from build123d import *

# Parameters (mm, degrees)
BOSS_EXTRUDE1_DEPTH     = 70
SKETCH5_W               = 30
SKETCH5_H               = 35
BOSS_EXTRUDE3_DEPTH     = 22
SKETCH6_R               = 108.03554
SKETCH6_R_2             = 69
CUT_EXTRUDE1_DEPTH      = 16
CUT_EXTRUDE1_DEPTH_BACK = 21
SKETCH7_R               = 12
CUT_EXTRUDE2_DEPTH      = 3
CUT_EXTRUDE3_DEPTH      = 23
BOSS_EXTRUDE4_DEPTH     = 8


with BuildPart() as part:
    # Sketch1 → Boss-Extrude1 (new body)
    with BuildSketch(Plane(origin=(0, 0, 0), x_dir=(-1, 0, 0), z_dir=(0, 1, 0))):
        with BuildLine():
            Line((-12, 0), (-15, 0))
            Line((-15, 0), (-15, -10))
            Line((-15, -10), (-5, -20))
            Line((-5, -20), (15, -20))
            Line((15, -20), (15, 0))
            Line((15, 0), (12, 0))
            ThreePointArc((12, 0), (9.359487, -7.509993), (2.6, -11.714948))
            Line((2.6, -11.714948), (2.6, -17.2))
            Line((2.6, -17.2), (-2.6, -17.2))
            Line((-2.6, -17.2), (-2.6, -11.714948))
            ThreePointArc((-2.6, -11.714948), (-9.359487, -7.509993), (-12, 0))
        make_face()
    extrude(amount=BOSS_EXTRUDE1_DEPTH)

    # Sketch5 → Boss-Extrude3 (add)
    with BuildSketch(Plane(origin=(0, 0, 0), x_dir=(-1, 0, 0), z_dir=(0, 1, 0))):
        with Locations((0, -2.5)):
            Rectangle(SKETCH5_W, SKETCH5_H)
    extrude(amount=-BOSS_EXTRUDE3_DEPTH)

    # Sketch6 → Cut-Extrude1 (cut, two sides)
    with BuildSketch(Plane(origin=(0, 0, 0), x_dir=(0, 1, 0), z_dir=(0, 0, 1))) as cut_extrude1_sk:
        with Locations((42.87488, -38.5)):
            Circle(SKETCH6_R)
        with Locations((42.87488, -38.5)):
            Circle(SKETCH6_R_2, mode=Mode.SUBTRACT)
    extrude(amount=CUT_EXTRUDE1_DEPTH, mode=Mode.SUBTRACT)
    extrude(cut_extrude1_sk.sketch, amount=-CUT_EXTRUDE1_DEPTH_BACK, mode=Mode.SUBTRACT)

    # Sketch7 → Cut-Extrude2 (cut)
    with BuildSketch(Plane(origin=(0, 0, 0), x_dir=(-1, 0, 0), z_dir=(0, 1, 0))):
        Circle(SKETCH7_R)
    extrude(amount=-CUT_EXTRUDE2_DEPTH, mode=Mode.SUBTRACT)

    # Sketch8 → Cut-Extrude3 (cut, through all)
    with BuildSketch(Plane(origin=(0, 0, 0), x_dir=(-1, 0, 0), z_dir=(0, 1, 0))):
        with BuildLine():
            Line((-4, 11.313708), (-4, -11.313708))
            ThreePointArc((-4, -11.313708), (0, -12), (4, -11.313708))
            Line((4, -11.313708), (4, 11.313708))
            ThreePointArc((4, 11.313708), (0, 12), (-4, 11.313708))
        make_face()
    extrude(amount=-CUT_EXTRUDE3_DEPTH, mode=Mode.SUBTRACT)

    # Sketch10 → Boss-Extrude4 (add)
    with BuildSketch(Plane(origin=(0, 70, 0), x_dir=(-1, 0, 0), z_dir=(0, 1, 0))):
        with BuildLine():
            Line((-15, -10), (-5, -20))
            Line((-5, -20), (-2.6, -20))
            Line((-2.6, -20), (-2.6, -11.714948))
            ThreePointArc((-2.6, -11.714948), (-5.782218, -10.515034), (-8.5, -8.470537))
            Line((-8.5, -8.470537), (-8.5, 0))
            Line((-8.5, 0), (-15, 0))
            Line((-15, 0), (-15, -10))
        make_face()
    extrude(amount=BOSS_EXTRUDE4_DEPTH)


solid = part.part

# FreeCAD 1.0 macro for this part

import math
import FreeCAD as App
import Part
import Sketcher
Q = App.Units.Quantity


def add_polygon(sketch, points):
    """Adds a closed chain of lines whose ends are joined by coincident constraints."""
    first, n = sketch.GeometryCount, len(points)
    for a, b in zip(points, points[1:] + points[:1]):
        sketch.addGeometry(Part.LineSegment(App.Vector(*a, 0), App.Vector(*b, 0)), False)
    for i in range(n):
        sketch.addConstraint(Sketcher.Constraint("Coincident", first + i, 2, first + (i + 1) % n, 1))

doc = App.newDocument("Part")
body = doc.addObject("PartDesign::Body", "Body")

# Sketch on XZ plane
sketch1 = body.newObject("Sketcher::SketchObject", "Sketch")
sketch1.AttachmentSupport = (doc.getObject("XZ_Plane"), [""])
sketch1.MapMode = "FlatFace"
sketch1.addGeometry(Part.LineSegment(App.Vector(12, 0, 0), App.Vector(15, 0, 0)), False)
sketch1.addGeometry(Part.LineSegment(App.Vector(15, 0, 0), App.Vector(15, -10, 0)), False)
sketch1.addGeometry(Part.LineSegment(App.Vector(15, -10, 0), App.Vector(5, -20, 0)), False)
sketch1.addGeometry(Part.LineSegment(App.Vector(5, -20, 0), App.Vector(-15, -20, 0)), False)
sketch1.addGeometry(Part.LineSegment(App.Vector(-15, -20, 0), App.Vector(-15, 0, 0)), False)
sketch1.addGeometry(Part.LineSegment(App.Vector(-15, 0, 0), App.Vector(-12, 0, 0)), False)
sketch1.addGeometry(Part.ArcOfCircle(Part.Circle(App.Vector(0, 0, 0), App.Vector(0, 0, 1), 12), math.radians(-180), math.radians(-103)), False)
sketch1.addGeometry(Part.LineSegment(App.Vector(-2.6, -11.7, 0), App.Vector(-2.6, -17.2, 0)), False)
sketch1.addGeometry(Part.LineSegment(App.Vector(-2.6, -17.2, 0), App.Vector(2.6, -17.2, 0)), False)
sketch1.addGeometry(Part.LineSegment(App.Vector(2.6, -17.2, 0), App.Vector(2.6, -11.7, 0)), False)
sketch1.addGeometry(Part.ArcOfCircle(Part.Circle(App.Vector(0, 0, 0), App.Vector(0, 0, 1), 12), math.radians(-77), math.radians(0)), False)
sketch1.addConstraint(Sketcher.Constraint("Coincident", 0, 2, 1, 1))
sketch1.addConstraint(Sketcher.Constraint("Coincident", 1, 2, 2, 1))
sketch1.addConstraint(Sketcher.Constraint("Coincident", 2, 2, 3, 1))
sketch1.addConstraint(Sketcher.Constraint("Coincident", 3, 2, 4, 1))
sketch1.addConstraint(Sketcher.Constraint("Coincident", 4, 2, 5, 1))
sketch1.addConstraint(Sketcher.Constraint("Coincident", 5, 2, 6, 1))
sketch1.addConstraint(Sketcher.Constraint("Coincident", 6, 2, 7, 1))
sketch1.addConstraint(Sketcher.Constraint("Coincident", 7, 2, 8, 1))
sketch1.addConstraint(Sketcher.Constraint("Coincident", 8, 2, 9, 1))
sketch1.addConstraint(Sketcher.Constraint("Coincident", 9, 2, 10, 1))
sketch1.addConstraint(Sketcher.Constraint("Coincident", 10, 2, 0, 1))
sketch1.addConstraint(Sketcher.Constraint("Horizontal", 0))
sketch1.addConstraint(Sketcher.Constraint("Vertical", 1))
sketch1.addConstraint(Sketcher.Constraint("Horizontal", 3))
sketch1.addConstraint(Sketcher.Constraint("Vertical", 4))
sketch1.addConstraint(Sketcher.Constraint("Horizontal", 5))
sketch1.addConstraint(Sketcher.Constraint("Vertical", 7))
sketch1.addConstraint(Sketcher.Constraint("Horizontal", 8))
sketch1.addConstraint(Sketcher.Constraint("Vertical", 9))
sketch1.addConstraint(Sketcher.Constraint("Coincident", 6, 3, -1, 1))
sketch1.addConstraint(Sketcher.Constraint("Coincident", 10, 3, -1, 1))
sketch1.addConstraint(Sketcher.Constraint("Equal", 6, 10))
sketch1.addConstraint(Sketcher.Constraint("Symmetric", 0, 2, 4, 2, -1, 1))
sketch1.addConstraint(Sketcher.Constraint("PointOnObject", 0, 2, -1))
sketch1.addConstraint(Sketcher.Constraint("Horizontal", 6, 2, 9, 2))
sketch1.addConstraint(Sketcher.Constraint("Equal", 3, 4))
sketch1.addConstraint(Sketcher.Constraint("Radius", 6, Q("12.000002 mm")))
sketch1.addConstraint(Sketcher.Constraint("DistanceX", 0, 1, 0, 2, Q("3 mm")))
sketch1.addConstraint(Sketcher.Constraint("DistanceX", 3, 2, 3, 1, Q("20 mm")))
sketch1.addConstraint(Sketcher.Constraint("DistanceY", 1, 2, 1, 1, Q("10 mm")))
sketch1.addConstraint(Sketcher.Constraint("DistanceX", 8, 1, 8, 2, Q("5.2 mm")))
sketch1.addConstraint(Sketcher.Constraint("DistanceY", 7, 2, -1, 1, Q("17.2 mm")))
pad1 = body.newObject("PartDesign::Pad", "Pad")
pad1.Profile = sketch1
pad1.Length = 70
pad1.Reversed = True

# Sketch on XZ plane
sketch2 = body.newObject("Sketcher::SketchObject", "Sketch001")
sketch2.AttachmentSupport = (doc.getObject("XZ_Plane"), [""])
sketch2.MapMode = "FlatFace"
add_polygon(sketch2, [(15, 15), (15, -20), (-15, -20), (-15, 15)])  # lines 0-3
sketch2.addConstraint(Sketcher.Constraint("Vertical", 0))
sketch2.addConstraint(Sketcher.Constraint("Horizontal", 1))
sketch2.addConstraint(Sketcher.Constraint("Vertical", 2))
sketch2.addConstraint(Sketcher.Constraint("Horizontal", 3))
sketch2.addConstraint(Sketcher.Constraint("DistanceX", 1, 2, 1, 1, Q("30 mm")))
sketch2.addConstraint(Sketcher.Constraint("DistanceY", 0, 2, 0, 1, Q("35 mm")))
sketch2.addConstraint(Sketcher.Constraint("DistanceX", -1, 1, 0, 2, Q("15 mm")))
sketch2.addConstraint(Sketcher.Constraint("DistanceY", 0, 2, -1, 1, Q("20 mm")))
pad2 = body.newObject("PartDesign::Pad", "Pad001")
pad2.Profile = sketch2
pad2.Length = 22

# Sketch on XY plane
sketch3 = body.newObject("Sketcher::SketchObject", "Sketch002")
sketch3.AttachmentSupport = (doc.getObject("XY_Plane"), [""])
sketch3.MapMode = "FlatFace"
sketch3.addGeometry(Part.Circle(App.Vector(38, 43, 0), App.Vector(0, 0, 1), 108), False)
sketch3.addGeometry(Part.Circle(App.Vector(38, 43, 0), App.Vector(0, 0, 1), 69), False)
sketch3.addConstraint(Sketcher.Constraint("Coincident", 1, 3, 0, 3))
sketch3.addConstraint(Sketcher.Constraint("Diameter", 1, Q("138 mm")))
sketch3.addConstraint(Sketcher.Constraint("DistanceX", -1, 1, 0, 3, Q("38.5 mm")))
sketch3.addConstraint(Sketcher.Constraint("Diameter", 0, Q("216.07108 mm")))
sketch3.addConstraint(Sketcher.Constraint("DistanceY", -1, 1, 0, 3, Q("42.87488 mm")))
pocket1 = body.newObject("PartDesign::Pocket", "Pocket")
pocket1.Profile = sketch3
pocket1.Type = "ThroughAll"
pocket1.Midplane = True

# Sketch on XZ plane
sketch4 = body.newObject("Sketcher::SketchObject", "Sketch003")
sketch4.AttachmentSupport = (doc.getObject("XZ_Plane"), [""])
sketch4.MapMode = "FlatFace"
sketch4.addGeometry(Part.Circle(App.Vector(0, 0, 0), App.Vector(0, 0, 1), 12), False)
sketch4.addConstraint(Sketcher.Constraint("Coincident", 0, 3, -1, 1))
sketch4.addConstraint(Sketcher.Constraint("Diameter", 0, Q("24 mm")))
pocket2 = body.newObject("PartDesign::Pocket", "Pocket001")
pocket2.Profile = sketch4
pocket2.Length = 3
pocket2.Reversed = True

# Sketch on XZ plane
sketch5 = body.newObject("Sketcher::SketchObject", "Sketch004")
sketch5.AttachmentSupport = (doc.getObject("XZ_Plane"), [""])
sketch5.MapMode = "FlatFace"
sketch5.addGeometry(Part.LineSegment(App.Vector(4, 11, 0), App.Vector(4, -11, 0)), False)
sketch5.addGeometry(Part.ArcOfCircle(Part.Circle(App.Vector(0, 0, 0), App.Vector(0, 0, 1), 12), math.radians(-109), math.radians(-71)), False)
sketch5.addGeometry(Part.LineSegment(App.Vector(-4, -11, 0), App.Vector(-4, 11, 0)), False)
sketch5.addGeometry(Part.ArcOfCircle(Part.Circle(App.Vector(0, 0, 0), App.Vector(0, 0, 1), 12), math.radians(71), math.radians(109)), False)
sketch5.addConstraint(Sketcher.Constraint("Coincident", 0, 2, 1, 2))
sketch5.addConstraint(Sketcher.Constraint("Coincident", 1, 1, 2, 1))
sketch5.addConstraint(Sketcher.Constraint("Coincident", 2, 2, 3, 2))
sketch5.addConstraint(Sketcher.Constraint("Coincident", 3, 1, 0, 1))
sketch5.addConstraint(Sketcher.Constraint("Vertical", 0))
sketch5.addConstraint(Sketcher.Constraint("Vertical", 2))
sketch5.addConstraint(Sketcher.Constraint("Coincident", 1, 3, -1, 1))
sketch5.addConstraint(Sketcher.Constraint("Coincident", 3, 3, -1, 1))
sketch5.addConstraint(Sketcher.Constraint("Equal", 1, 3))
sketch5.addConstraint(Sketcher.Constraint("Horizontal", 0, 2, 1, 1))
sketch5.addConstraint(Sketcher.Constraint("DistanceX", -1, 1, 0, 2, Q("4 mm")))
sketch5.addConstraint(Sketcher.Constraint("Radius", 1, Q("11.999992 mm")))
pocket3 = body.newObject("PartDesign::Pocket", "Pocket002")
pocket3.Profile = sketch5
pocket3.Type = "ThroughAll"
pocket3.Reversed = True

# Sketch on XZ plane
sketch6 = body.newObject("Sketcher::SketchObject", "Sketch005")
sketch6.AttachmentSupport = (doc.getObject("XZ_Plane"), [""])
sketch6.MapMode = "FlatFace"
sketch6.AttachmentOffset = App.Placement(App.Vector(0, 0, -70), App.Rotation())
sketch6.addGeometry(Part.LineSegment(App.Vector(15, -10, 0), App.Vector(5, -20, 0)), False)
sketch6.addGeometry(Part.LineSegment(App.Vector(5, -20, 0), App.Vector(2.6, -20, 0)), False)
sketch6.addGeometry(Part.LineSegment(App.Vector(2.6, -20, 0), App.Vector(2.6, -11.7, 0)), False)
sketch6.addGeometry(Part.ArcOfCircle(Part.Circle(App.Vector(0, 0, 0), App.Vector(0, 0, 1), 12), math.radians(-77), math.radians(-45)), False)
sketch6.addGeometry(Part.LineSegment(App.Vector(8.5, -8.5, 0), App.Vector(8.5, 0, 0)), False)
sketch6.addGeometry(Part.LineSegment(App.Vector(8.5, 0, 0), App.Vector(15, 0, 0)), False)
sketch6.addGeometry(Part.LineSegment(App.Vector(15, 0, 0), App.Vector(15, -10, 0)), False)
sketch6.addConstraint(Sketcher.Constraint("Coincident", 0, 2, 1, 1))
sketch6.addConstraint(Sketcher.Constraint("Coincident", 1, 2, 2, 1))
sketch6.addConstraint(Sketcher.Constraint("Coincident", 2, 2, 3, 1))
sketch6.addConstraint(Sketcher.Constraint("Coincident", 3, 2, 4, 1))
sketch6.addConstraint(Sketcher.Constraint("Coincident", 4, 2, 5, 1))
sketch6.addConstraint(Sketcher.Constraint("Coincident", 5, 2, 6, 1))
sketch6.addConstraint(Sketcher.Constraint("Coincident", 6, 2, 0, 1))
sketch6.addConstraint(Sketcher.Constraint("Horizontal", 1))
sketch6.addConstraint(Sketcher.Constraint("Vertical", 2))
sketch6.addConstraint(Sketcher.Constraint("Vertical", 4))
sketch6.addConstraint(Sketcher.Constraint("Horizontal", 5))
sketch6.addConstraint(Sketcher.Constraint("Vertical", 6))
sketch6.addConstraint(Sketcher.Constraint("PointOnObject", 4, 2, -1))
sketch6.addConstraint(Sketcher.Constraint("DistanceY", 6, 2, 6, 1, Q("10 mm")))
sketch6.addConstraint(Sketcher.Constraint("Angle", 0, Q("-135 deg")))
sketch6.addConstraint(Sketcher.Constraint("DistanceX", 1, 2, 1, 1, Q("2.4 mm")))
sketch6.addConstraint(Sketcher.Constraint("DistanceX", 5, 1, 5, 2, Q("6.5 mm")))
sketch6.addConstraint(Sketcher.Constraint("DistanceX", -1, 1, 0, 2, Q("5 mm")))
sketch6.addConstraint(Sketcher.Constraint("DistanceY", 0, 2, -1, 1, Q("20 mm")))
sketch6.addConstraint(Sketcher.Constraint("Radius", 3, Q("12.000017 mm")))
sketch6.addConstraint(Sketcher.Constraint("DistanceY", 2, 1, 2, 2, Q("8.285052 mm")))
sketch6.addConstraint(Sketcher.Constraint("DistanceY", 4, 1, 4, 2, Q("8.470537 mm")))
pad3 = body.newObject("PartDesign::Pad", "Pad002")
pad3.Profile = sketch6
pad3.Length = 8
pad3.Reversed = True

doc.recompute()
